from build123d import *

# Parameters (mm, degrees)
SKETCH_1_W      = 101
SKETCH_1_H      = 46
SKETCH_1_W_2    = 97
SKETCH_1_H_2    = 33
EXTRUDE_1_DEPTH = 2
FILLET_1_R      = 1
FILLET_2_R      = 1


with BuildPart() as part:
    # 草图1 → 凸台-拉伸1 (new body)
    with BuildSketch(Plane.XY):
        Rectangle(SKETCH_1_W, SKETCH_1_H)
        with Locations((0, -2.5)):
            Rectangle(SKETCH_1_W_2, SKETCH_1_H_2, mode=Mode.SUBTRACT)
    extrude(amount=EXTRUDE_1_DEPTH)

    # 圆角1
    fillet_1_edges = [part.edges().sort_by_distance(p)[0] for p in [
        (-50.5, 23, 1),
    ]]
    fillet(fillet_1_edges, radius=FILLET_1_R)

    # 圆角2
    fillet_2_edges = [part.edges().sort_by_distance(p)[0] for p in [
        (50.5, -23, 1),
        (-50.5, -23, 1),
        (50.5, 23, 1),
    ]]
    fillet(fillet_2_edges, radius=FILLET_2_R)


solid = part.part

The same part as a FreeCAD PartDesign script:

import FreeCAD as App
import Part
import Sketcher


def edges_at(feature, points):
    """Names of the edges that pass closest to the given points."""
    edges = feature.Shape.Edges
    near = lambda p: min(range(len(edges)), key=lambda i: edges[i].distToShape(Part.Vertex(*p))[0])
    return sorted({f"Edge{near(p) + 1}" for p in points})


def add_polygon(sketch, points):
    """Adds a closed chain of lines whose ends are joined by coincident constraints."""
    first, n = sketch.GeometryCount, len(points)
    for a, b in zip(points, points[1:] + points[:1]):
        sketch.addGeometry(Part.LineSegment(App.Vector(*a, 0), App.Vector(*b, 0)), False)
    for i in range(n):
        sketch.addConstraint(Sketcher.Constraint("Coincident", first + i, 2, first + (i + 1) % n, 1))

doc = App.newDocument("Part")
body = doc.addObject("PartDesign::Body", "Body")

sketch1 = doc.addObject("Sketcher::SketchObject", "Sketch")
body.addObject(sketch1)
sketch1.AttachmentSupport = (doc.XY_Plane, [""])
sketch1.MapMode = "FlatFace"
add_polygon(sketch1, [(-50, 23), (-50, -23), (50, -23), (50, 23)])
add_polygon(sketch1, [(48, -19), (-48, -19), (-48, 14), (48, 14)])
sketch1.addConstraint([
    Sketcher.Constraint("Vertical", 0),
    Sketcher.Constraint("Horizontal", 1),
    Sketcher.Constraint("Vertical", 2),
    Sketcher.Constraint("Horizontal", 3),
    Sketcher.Constraint("Horizontal", 4),
    Sketcher.Constraint("Vertical", 5),
    Sketcher.Constraint("Horizontal", 6),
    Sketcher.Constraint("Vertical", 7),
    Sketcher.Constraint("Symmetric", 0, 2, 2, 2, -1, 1),
    Sketcher.Constraint("DistanceX", 1, 1, 1, 2, 101.0),
    Sketcher.Constraint("DistanceX", 4, 2, 4, 1, 97.0),
    Sketcher.Constraint("DistanceY", 0, 2, 0, 1, 46.0),
    Sketcher.Constraint("DistanceY", 5, 1, 5, 2, 33.0),
    Sketcher.Constraint("DistanceY", 4, 2, -1, 1, 19.0),
    Sketcher.Constraint("DistanceX", 0, 2, 4, 2, 2.0),
])
pad1 = doc.addObject("PartDesign::Pad", "Pad")
body.addObject(pad1)
pad1.Profile = sketch1
pad1.Length = 2
doc.recompute()

fillet = doc.addObject("PartDesign::Fillet", "Fillet")
body.addObject(fillet)
fillet.Base = (pad1, edges_at(pad1, [(-50.5, 23, 1)]))
fillet.Radius = 1
doc.recompute()

fillet2 = doc.addObject("PartDesign::Fillet", "Fillet001")
body.addObject(fillet2)
fillet2.Base = (fillet, edges_at(fillet, [(50.5, -23, 1), (-50.5, -23, 1), (50.5, 23, 1)]))
fillet2.Radius = 1

doc.recompute()
